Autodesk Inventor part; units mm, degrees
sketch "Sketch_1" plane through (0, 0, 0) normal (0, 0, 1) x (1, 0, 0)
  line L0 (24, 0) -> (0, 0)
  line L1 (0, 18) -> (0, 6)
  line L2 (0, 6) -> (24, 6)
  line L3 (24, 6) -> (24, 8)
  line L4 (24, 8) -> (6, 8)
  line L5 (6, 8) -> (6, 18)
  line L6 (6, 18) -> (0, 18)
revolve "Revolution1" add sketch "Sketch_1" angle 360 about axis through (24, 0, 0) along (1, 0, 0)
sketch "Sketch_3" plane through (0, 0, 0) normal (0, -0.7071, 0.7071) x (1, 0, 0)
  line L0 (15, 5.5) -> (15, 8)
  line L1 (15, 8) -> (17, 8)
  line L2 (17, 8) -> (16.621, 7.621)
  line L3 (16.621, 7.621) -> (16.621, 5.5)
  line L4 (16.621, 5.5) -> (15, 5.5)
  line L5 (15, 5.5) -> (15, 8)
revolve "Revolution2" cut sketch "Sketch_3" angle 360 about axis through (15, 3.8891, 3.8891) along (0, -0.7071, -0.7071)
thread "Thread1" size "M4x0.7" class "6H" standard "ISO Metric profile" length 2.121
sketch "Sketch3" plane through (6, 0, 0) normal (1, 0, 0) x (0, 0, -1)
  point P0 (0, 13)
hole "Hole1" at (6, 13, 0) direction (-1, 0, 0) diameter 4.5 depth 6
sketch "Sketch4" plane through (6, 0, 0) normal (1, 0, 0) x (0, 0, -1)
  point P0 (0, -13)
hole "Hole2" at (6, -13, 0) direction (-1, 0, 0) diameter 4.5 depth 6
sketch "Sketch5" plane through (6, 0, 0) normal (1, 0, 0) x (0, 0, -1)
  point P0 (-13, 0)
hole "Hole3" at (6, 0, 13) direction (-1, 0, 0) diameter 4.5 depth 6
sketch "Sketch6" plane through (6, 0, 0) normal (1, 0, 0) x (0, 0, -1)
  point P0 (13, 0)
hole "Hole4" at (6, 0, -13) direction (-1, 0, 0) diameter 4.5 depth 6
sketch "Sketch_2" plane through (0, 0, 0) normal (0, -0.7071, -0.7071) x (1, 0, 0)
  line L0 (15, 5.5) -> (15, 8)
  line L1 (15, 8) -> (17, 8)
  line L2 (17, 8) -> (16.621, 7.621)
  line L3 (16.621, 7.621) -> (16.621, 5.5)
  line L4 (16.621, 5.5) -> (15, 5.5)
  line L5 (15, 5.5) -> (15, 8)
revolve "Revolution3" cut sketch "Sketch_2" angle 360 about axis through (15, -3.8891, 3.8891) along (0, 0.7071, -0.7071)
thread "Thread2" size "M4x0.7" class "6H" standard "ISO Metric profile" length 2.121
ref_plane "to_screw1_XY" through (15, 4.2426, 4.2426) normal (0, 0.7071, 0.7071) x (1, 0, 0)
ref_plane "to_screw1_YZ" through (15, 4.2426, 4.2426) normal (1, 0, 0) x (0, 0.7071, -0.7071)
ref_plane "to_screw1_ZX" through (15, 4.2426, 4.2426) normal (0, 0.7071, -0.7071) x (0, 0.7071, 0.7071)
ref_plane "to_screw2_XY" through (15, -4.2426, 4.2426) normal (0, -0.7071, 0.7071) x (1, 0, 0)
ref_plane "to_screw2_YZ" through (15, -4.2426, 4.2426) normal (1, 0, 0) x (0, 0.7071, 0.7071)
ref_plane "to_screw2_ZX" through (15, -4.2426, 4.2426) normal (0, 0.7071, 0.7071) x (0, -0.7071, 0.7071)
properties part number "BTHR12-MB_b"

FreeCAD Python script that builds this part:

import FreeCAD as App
import Part
import Sketcher
Q = App.Units.Quantity

doc = App.newDocument("Part")
body = doc.addObject("PartDesign::Body", "Body")

# Sketch on XY plane
sketch1 = body.newObject("Sketcher::SketchObject", "Sketch")
sketch1.AttachmentSupport = (doc.getObject("XY_Plane"), [""])
sketch1.MapMode = "FlatFace"
sketch1.addGeometry(Part.LineSegment(App.Vector(6, 18, 0), App.Vector(0, 18, 0)), False)
sketch1.addGeometry(Part.LineSegment(App.Vector(0, 18, 0), App.Vector(0, 6, 0)), False)
sketch1.addGeometry(Part.LineSegment(App.Vector(0, 6, 0), App.Vector(24, 6, 0)), False)
sketch1.addGeometry(Part.LineSegment(App.Vector(24, 6, 0), App.Vector(24, 8, 0)), False)
sketch1.addGeometry(Part.LineSegment(App.Vector(24, 8, 0), App.Vector(6, 8, 0)), False)
sketch1.addGeometry(Part.LineSegment(App.Vector(6, 8, 0), App.Vector(6, 18, 0)), False)
sketch1.addConstraint(Sketcher.Constraint("Coincident", 0, 2, 1, 1))
sketch1.addConstraint(Sketcher.Constraint("Coincident", 1, 2, 2, 1))
sketch1.addConstraint(Sketcher.Constraint("Coincident", 2, 2, 3, 1))
sketch1.addConstraint(Sketcher.Constraint("Coincident", 3, 2, 4, 1))
sketch1.addConstraint(Sketcher.Constraint("Coincident", 4, 2, 5, 1))
sketch1.addConstraint(Sketcher.Constraint("Coincident", 5, 2, 0, 1))
sketch1.addConstraint(Sketcher.Constraint("Horizontal", 0))
sketch1.addConstraint(Sketcher.Constraint("Vertical", 1))
sketch1.addConstraint(Sketcher.Constraint("Horizontal", 2))
sketch1.addConstraint(Sketcher.Constraint("Vertical", 3))
sketch1.addConstraint(Sketcher.Constraint("Horizontal", 4))
sketch1.addConstraint(Sketcher.Constraint("Vertical", 5))
sketch1.addConstraint(Sketcher.Constraint("PointOnObject", 0, 2, -2))
sketch1.addConstraint(Sketcher.Constraint("DistanceX", 0, 2, 0, 1, 6.0))
sketch1.addConstraint(Sketcher.Constraint("DistanceX", 2, 1, 2, 2, 24.0))
sketch1.addConstraint(Sketcher.Constraint("DistanceY", 1, 2, 1, 1, 12.0))
sketch1.addConstraint(Sketcher.Constraint("DistanceY", 3, 1, 3, 2, 2.0))
sketch1.addConstraint(Sketcher.Constraint("DistanceY", -1, 1, 0, 2, 18.0))
revolution = body.newObject("PartDesign::Revolution", "Revolution")
revolution.Profile = sketch1
revolution.ReferenceAxis = (sketch1, ["H_Axis"])
revolution.Angle = 360

# Sketch on an angled plane
sketch2 = body.newObject("Sketcher::SketchObject", "Sketch001")
sketch2.Placement = App.Placement(App.Vector(0, 0, 0), App.Rotation(App.Vector(1, 0, 0), App.Vector(0, 0.707106781, 0.707106781), App.Vector(0, -0.707106781, 0.707106781), "ZXY"))
sketch2.addGeometry(Part.LineSegment(App.Vector(15, 8, 0), App.Vector(15, 5.5, 0)), False)
sketch2.addGeometry(Part.LineSegment(App.Vector(15, 5.5, 0), App.Vector(16.621, 5.5, 0)), False)
sketch2.addGeometry(Part.LineSegment(App.Vector(16.621, 5.5, 0), App.Vector(16.621, 7.621, 0)), False)
sketch2.addGeometry(Part.LineSegment(App.Vector(16.621, 7.621, 0), App.Vector(17, 8, 0)), False)
sketch2.addGeometry(Part.LineSegment(App.Vector(17, 8, 0), App.Vector(15, 8, 0)), False)
sketch2.addGeometry(Part.LineSegment(App.Vector(15, 8, 0), App.Vector(15, 5.5, 0)), True)  # axis
sketch2.addConstraint(Sketcher.Constraint("Coincident", 0, 2, 1, 1))
sketch2.addConstraint(Sketcher.Constraint("Coincident", 1, 2, 2, 1))
sketch2.addConstraint(Sketcher.Constraint("Coincident", 2, 2, 3, 1))
sketch2.addConstraint(Sketcher.Constraint("Coincident", 3, 2, 4, 1))
sketch2.addConstraint(Sketcher.Constraint("Coincident", 4, 2, 0, 1))
sketch2.addConstraint(Sketcher.Constraint("Vertical", 0))
sketch2.addConstraint(Sketcher.Constraint("Horizontal", 1))
sketch2.addConstraint(Sketcher.Constraint("Vertical", 2))
sketch2.addConstraint(Sketcher.Constraint("Horizontal", 4))
sketch2.addConstraint(Sketcher.Constraint("Vertical", 5))
sketch2.addConstraint(Sketcher.Constraint("Coincident", 5, 1, 4, 2))
sketch2.addConstraint(Sketcher.Constraint("Horizontal", 1, 2, 5, 2))
sketch2.addConstraint(Sketcher.Constraint("DistanceX", 4, 2, 4, 1, 2.0))
sketch2.addConstraint(Sketcher.Constraint("Angle", 3, Q("45 deg")))
sketch2.addConstraint(Sketcher.Constraint("DistanceY", 0, 2, 0, 1, 2.5))
sketch2.addConstraint(Sketcher.Constraint("DistanceX", -1, 1, 0, 2, 15.0))
sketch2.addConstraint(Sketcher.Constraint("DistanceY", -1, 1, 3, 2, 8.0))
sketch2.addConstraint(Sketcher.Constraint("DistanceX", 1, 1, 1, 2, 1.621))
groove = body.newObject("PartDesign::Groove", "Groove")
groove.Profile = sketch2
groove.ReferenceAxis = (sketch2, ["Axis0"])
groove.Angle = 360

# Sketch on YZ plane
sketch3 = body.newObject("Sketcher::SketchObject", "Sketch002")
sketch3.AttachmentSupport = (doc.getObject("YZ_Plane"), [""])
sketch3.MapMode = "FlatFace"
sketch3.AttachmentOffset = App.Placement(App.Vector(0, 0, 6), App.Rotation())
sketch3.addGeometry(Part.Circle(App.Vector(13, 0, 0), App.Vector(0, 0, 1), 2.25), False)
sketch3.addConstraint(Sketcher.Constraint("PointOnObject", 0, 3, -1))
sketch3.addConstraint(Sketcher.Constraint("Diameter", 0, 4.5))
sketch3.addConstraint(Sketcher.Constraint("DistanceX", -1, 1, 0, 3, 13.0))
doc.recompute()
hole = body.newObject("PartDesign::Hole", "Hole")
hole.Profile = sketch3
hole.ThreadType = "None"
hole.Diameter = 4.5
hole.DepthType = "Dimension"
hole.Depth = 6
hole.DrillPoint = "Flat"

# Sketch on YZ plane
sketch4 = body.newObject("Sketcher::SketchObject", "Sketch003")
sketch4.AttachmentSupport = (doc.getObject("YZ_Plane"), [""])
sketch4.MapMode = "FlatFace"
sketch4.AttachmentOffset = App.Placement(App.Vector(0, 0, 6), App.Rotation())
sketch4.addGeometry(Part.Circle(App.Vector(-13, 0, 0), App.Vector(0, 0, 1), 2.25), False)
sketch4.addConstraint(Sketcher.Constraint("PointOnObject", 0, 3, -1))
sketch4.addConstraint(Sketcher.Constraint("Diameter", 0, 4.5))
sketch4.addConstraint(Sketcher.Constraint("DistanceX", 0, 3, -1, 1, 13.0))
doc.recompute()
hole2 = body.newObject("PartDesign::Hole", "Hole001")
hole2.Profile = sketch4
hole2.ThreadType = "None"
hole2.Diameter = 4.5
hole2.DepthType = "Dimension"
hole2.Depth = 6
hole2.DrillPoint = "Flat"

# Sketch on YZ plane
sketch5 = body.newObject("Sketcher::SketchObject", "Sketch004")
sketch5.AttachmentSupport = (doc.getObject("YZ_Plane"), [""])
sketch5.MapMode = "FlatFace"
sketch5.AttachmentOffset = App.Placement(App.Vector(0, 0, 6), App.Rotation())
sketch5.addGeometry(Part.Circle(App.Vector(0, 13, 0), App.Vector(0, 0, 1), 2.25), False)
sketch5.addConstraint(Sketcher.Constraint("PointOnObject", 0, 3, -2))
sketch5.addConstraint(Sketcher.Constraint("Diameter", 0, 4.5))
sketch5.addConstraint(Sketcher.Constraint("DistanceY", -1, 1, 0, 3, 13.0))
doc.recompute()
hole3 = body.newObject("PartDesign::Hole", "Hole002")
hole3.Profile = sketch5
hole3.ThreadType = "None"
hole3.Diameter = 4.5
hole3.DepthType = "Dimension"
hole3.Depth = 6
hole3.DrillPoint = "Flat"

# Sketch on YZ plane
sketch6 = body.newObject("Sketcher::SketchObject", "Sketch005")
sketch6.AttachmentSupport = (doc.getObject("YZ_Plane"), [""])
sketch6.MapMode = "FlatFace"
sketch6.AttachmentOffset = App.Placement(App.Vector(0, 0, 6), App.Rotation())
sketch6.addGeometry(Part.Circle(App.Vector(0, -13, 0), App.Vector(0, 0, 1), 2.25), False)
sketch6.addConstraint(Sketcher.Constraint("PointOnObject", 0, 3, -2))
sketch6.addConstraint(Sketcher.Constraint("Diameter", 0, 4.5))
sketch6.addConstraint(Sketcher.Constraint("DistanceY", 0, 3, -1, 1, 13.0))
doc.recompute()
hole4 = body.newObject("PartDesign::Hole", "Hole003")
hole4.Profile = sketch6
hole4.ThreadType = "None"
hole4.Diameter = 4.5
hole4.DepthType = "Dimension"
hole4.Depth = 6
hole4.DrillPoint = "Flat"

# Sketch on an angled plane
sketch7 = body.newObject("Sketcher::SketchObject", "Sketch006")
sketch7.Placement = App.Placement(App.Vector(0, 0, 0), App.Rotation(App.Vector(1, 0, 0), App.Vector(0, -0.707106781, 0.707106781), App.Vector(0, -0.707106781, -0.707106781), "ZXY"))
sketch7.addGeometry(Part.LineSegment(App.Vector(15, 8, 0), App.Vector(15, 5.5, 0)), False)
sketch7.addGeometry(Part.LineSegment(App.Vector(15, 5.5, 0), App.Vector(16.621, 5.5, 0)), False)
sketch7.addGeometry(Part.LineSegment(App.Vector(16.621, 5.5, 0), App.Vector(16.621, 7.621, 0)), False)
sketch7.addGeometry(Part.LineSegment(App.Vector(16.621, 7.621, 0), App.Vector(17, 8, 0)), False)
sketch7.addGeometry(Part.LineSegment(App.Vector(17, 8, 0), App.Vector(15, 8, 0)), False)
sketch7.addGeometry(Part.LineSegment(App.Vector(15, 8, 0), App.Vector(15, 5.5, 0)), True)  # axis
sketch7.addConstraint(Sketcher.Constraint("Coincident", 0, 2, 1, 1))
sketch7.addConstraint(Sketcher.Constraint("Coincident", 1, 2, 2, 1))
sketch7.addConstraint(Sketcher.Constraint("Coincident", 2, 2, 3, 1))
sketch7.addConstraint(Sketcher.Constraint("Coincident", 3, 2, 4, 1))
sketch7.addConstraint(Sketcher.Constraint("Coincident", 4, 2, 0, 1))
sketch7.addConstraint(Sketcher.Constraint("Vertical", 0))
sketch7.addConstraint(Sketcher.Constraint("Horizontal", 1))
sketch7.addConstraint(Sketcher.Constraint("Vertical", 2))
sketch7.addConstraint(Sketcher.Constraint("Horizontal", 4))
sketch7.addConstraint(Sketcher.Constraint("Vertical", 5))
sketch7.addConstraint(Sketcher.Constraint("Coincident", 5, 1, 4, 2))
sketch7.addConstraint(Sketcher.Constraint("Horizontal", 1, 2, 5, 2))
sketch7.addConstraint(Sketcher.Constraint("DistanceX", 4, 2, 4, 1, 2.0))
sketch7.addConstraint(Sketcher.Constraint("Angle", 3, Q("45 deg")))
sketch7.addConstraint(Sketcher.Constraint("DistanceY", 0, 2, 0, 1, 2.5))
sketch7.addConstraint(Sketcher.Constraint("DistanceX", -1, 1, 0, 2, 15.0))
sketch7.addConstraint(Sketcher.Constraint("DistanceY", -1, 1, 3, 2, 8.0))
sketch7.addConstraint(Sketcher.Constraint("DistanceX", 1, 1, 1, 2, 1.621))
groove2 = body.newObject("PartDesign::Groove", "Groove001")
groove2.Profile = sketch7
groove2.ReferenceAxis = (sketch7, ["Axis0"])
groove2.Angle = 360

doc.recompute()
